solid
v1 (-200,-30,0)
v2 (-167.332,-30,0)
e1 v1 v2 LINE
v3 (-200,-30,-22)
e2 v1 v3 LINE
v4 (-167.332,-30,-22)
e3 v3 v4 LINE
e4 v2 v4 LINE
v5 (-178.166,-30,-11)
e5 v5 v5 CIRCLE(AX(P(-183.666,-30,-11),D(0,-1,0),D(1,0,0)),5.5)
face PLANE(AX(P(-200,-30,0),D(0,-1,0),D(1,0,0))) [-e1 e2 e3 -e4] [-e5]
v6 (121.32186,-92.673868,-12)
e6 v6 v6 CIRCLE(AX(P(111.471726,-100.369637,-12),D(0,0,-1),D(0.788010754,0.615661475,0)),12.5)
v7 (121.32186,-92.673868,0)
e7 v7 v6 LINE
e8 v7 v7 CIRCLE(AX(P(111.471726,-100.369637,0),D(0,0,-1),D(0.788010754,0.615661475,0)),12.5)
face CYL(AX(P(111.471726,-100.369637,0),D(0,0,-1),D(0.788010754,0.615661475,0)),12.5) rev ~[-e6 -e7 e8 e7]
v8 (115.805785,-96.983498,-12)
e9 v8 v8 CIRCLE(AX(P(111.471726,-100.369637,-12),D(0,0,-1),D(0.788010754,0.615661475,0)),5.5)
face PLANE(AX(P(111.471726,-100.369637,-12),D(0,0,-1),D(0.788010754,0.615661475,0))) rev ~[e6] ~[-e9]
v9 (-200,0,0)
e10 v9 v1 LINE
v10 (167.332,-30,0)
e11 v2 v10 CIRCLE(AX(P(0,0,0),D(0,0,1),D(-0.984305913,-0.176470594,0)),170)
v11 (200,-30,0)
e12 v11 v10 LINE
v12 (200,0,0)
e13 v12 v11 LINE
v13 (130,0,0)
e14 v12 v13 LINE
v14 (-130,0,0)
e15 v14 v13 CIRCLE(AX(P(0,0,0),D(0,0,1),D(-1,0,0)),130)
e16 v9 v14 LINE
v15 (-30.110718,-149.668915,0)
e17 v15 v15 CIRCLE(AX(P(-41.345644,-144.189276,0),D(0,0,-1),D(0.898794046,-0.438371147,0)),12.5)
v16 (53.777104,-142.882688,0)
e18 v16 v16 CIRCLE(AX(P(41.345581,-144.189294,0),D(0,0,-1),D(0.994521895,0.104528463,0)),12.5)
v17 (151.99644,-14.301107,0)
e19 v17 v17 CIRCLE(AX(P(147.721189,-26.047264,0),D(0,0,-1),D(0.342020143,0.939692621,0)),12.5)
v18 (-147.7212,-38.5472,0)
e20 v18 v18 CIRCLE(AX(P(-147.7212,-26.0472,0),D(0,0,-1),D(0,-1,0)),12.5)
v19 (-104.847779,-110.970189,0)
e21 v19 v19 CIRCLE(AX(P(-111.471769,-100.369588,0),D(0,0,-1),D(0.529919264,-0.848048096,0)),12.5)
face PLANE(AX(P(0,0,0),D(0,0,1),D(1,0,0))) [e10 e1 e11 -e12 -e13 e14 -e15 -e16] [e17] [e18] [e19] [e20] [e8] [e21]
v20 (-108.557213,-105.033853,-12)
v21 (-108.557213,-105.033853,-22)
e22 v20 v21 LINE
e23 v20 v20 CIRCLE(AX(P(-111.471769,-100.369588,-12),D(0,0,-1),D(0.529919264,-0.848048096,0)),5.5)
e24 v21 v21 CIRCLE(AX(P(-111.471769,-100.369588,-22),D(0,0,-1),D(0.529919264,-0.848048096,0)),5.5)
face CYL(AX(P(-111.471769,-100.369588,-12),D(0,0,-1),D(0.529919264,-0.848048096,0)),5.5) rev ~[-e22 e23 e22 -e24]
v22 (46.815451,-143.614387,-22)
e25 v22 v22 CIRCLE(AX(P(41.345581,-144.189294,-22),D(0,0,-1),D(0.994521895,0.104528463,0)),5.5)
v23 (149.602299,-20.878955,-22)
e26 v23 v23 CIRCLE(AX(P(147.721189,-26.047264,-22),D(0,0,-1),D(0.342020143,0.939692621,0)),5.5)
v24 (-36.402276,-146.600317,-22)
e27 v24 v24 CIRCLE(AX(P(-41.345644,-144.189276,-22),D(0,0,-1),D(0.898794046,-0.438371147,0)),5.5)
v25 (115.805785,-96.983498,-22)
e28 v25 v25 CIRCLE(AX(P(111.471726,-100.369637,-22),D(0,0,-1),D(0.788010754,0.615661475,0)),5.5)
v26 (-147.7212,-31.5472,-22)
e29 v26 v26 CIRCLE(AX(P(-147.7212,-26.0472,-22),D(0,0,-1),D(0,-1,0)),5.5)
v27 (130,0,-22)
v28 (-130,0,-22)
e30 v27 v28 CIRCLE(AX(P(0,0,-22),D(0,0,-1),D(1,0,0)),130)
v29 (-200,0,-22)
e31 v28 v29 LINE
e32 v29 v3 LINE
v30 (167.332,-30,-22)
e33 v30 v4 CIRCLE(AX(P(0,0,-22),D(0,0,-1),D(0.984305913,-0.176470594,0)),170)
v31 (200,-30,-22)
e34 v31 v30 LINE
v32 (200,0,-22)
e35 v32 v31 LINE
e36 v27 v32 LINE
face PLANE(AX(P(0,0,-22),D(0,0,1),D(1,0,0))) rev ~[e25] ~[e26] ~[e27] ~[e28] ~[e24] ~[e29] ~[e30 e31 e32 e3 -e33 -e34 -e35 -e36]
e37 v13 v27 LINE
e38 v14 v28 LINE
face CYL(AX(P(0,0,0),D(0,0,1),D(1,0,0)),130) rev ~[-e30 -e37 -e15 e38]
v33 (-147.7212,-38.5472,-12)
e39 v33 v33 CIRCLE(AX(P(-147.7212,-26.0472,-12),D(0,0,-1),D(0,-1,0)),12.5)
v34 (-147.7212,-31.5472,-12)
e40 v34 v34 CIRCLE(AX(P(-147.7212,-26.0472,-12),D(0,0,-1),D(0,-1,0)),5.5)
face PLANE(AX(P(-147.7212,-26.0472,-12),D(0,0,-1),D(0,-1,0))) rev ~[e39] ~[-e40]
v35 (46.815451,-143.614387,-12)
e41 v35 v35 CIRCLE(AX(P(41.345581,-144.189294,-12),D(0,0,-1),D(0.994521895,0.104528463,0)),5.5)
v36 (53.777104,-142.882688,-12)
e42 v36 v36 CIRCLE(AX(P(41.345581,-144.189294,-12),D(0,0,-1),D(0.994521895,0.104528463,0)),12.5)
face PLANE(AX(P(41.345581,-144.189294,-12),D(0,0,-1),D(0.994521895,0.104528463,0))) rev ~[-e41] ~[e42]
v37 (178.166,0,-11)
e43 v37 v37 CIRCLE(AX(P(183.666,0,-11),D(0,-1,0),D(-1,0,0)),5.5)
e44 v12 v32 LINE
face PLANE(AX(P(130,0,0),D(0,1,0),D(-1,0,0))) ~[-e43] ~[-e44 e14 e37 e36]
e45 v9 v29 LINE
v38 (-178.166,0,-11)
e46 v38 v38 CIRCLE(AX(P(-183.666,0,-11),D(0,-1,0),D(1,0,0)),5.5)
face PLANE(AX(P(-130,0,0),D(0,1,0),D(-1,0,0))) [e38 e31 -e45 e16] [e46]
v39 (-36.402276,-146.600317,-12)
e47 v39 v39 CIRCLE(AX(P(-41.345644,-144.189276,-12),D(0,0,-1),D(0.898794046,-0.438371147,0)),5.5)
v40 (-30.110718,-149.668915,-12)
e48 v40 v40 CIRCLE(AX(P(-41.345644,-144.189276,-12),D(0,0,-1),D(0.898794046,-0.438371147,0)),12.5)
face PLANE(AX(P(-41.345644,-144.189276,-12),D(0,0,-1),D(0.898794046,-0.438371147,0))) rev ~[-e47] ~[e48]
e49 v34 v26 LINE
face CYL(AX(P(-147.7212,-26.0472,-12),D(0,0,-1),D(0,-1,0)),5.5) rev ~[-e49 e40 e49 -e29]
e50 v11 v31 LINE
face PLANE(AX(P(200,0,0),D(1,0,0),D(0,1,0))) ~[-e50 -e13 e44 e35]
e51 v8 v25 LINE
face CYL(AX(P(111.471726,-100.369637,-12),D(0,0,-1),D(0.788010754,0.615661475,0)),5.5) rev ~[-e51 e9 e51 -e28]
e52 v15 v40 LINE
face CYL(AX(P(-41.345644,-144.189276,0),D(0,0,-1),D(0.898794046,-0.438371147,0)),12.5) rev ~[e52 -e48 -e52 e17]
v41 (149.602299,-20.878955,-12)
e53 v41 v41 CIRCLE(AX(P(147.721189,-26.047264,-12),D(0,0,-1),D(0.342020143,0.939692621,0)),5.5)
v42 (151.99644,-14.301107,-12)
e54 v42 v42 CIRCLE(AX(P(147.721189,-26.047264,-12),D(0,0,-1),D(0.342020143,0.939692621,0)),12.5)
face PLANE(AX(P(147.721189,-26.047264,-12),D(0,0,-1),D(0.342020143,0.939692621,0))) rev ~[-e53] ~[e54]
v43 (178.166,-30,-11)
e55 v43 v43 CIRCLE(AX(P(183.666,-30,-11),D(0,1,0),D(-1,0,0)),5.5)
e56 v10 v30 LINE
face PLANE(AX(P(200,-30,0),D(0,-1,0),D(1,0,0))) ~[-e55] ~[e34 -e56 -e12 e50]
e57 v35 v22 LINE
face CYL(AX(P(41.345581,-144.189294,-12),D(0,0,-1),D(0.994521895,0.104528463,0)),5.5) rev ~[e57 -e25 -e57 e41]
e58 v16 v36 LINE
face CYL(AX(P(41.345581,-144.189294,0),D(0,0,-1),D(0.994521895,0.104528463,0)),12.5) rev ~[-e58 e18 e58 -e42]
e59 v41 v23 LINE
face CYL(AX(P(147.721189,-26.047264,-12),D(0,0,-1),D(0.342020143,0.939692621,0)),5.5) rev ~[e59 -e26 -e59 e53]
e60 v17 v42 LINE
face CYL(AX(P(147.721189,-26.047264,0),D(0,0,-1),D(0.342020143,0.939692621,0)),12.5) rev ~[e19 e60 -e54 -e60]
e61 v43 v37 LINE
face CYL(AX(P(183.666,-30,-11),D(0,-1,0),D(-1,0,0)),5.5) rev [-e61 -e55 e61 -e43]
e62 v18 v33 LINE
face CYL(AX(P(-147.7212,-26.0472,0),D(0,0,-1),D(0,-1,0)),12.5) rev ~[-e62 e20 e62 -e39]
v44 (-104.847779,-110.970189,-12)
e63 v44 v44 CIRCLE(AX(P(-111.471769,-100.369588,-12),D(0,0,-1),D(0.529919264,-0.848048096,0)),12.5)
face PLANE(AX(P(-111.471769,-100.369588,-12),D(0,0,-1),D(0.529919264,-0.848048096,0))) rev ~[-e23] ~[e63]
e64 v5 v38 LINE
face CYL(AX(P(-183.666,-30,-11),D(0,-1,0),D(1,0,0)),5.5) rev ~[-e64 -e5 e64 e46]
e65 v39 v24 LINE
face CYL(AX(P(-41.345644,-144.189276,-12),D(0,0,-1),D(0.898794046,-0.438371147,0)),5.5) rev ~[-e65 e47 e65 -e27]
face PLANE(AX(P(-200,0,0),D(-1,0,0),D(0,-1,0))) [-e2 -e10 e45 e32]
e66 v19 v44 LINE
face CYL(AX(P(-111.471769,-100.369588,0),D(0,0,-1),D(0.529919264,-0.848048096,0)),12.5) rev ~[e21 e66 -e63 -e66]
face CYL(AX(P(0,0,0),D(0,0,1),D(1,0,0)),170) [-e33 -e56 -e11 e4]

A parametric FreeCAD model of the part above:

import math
import FreeCAD as App
import Part
import Sketcher

doc = App.newDocument("Part")
body = doc.addObject("PartDesign::Body", "Body")

# Sketch on XY plane
sketch1 = body.newObject("Sketcher::SketchObject", "Sketch")
sketch1.AttachmentSupport = (doc.getObject("XY_Plane"), [""])
sketch1.MapMode = "FlatFace"
sketch1.addGeometry([
    Part.ArcOfCircle(Part.Circle(App.Vector(0, 0, 0), App.Vector(0, 0, 1), 130), math.radians(180), math.radians(270)),  # 0
    Part.LineSegment(App.Vector(-130, 0, 0), App.Vector(-200, 0, 0)),  # 1
    Part.LineSegment(App.Vector(-200, 0, 0), App.Vector(-200, -30, 0)),  # 2
    Part.LineSegment(App.Vector(-200, -30, 0), App.Vector(-167.332, -30, 0)),  # 3
    Part.ArcOfCircle(Part.Circle(App.Vector(0, 0, 0), App.Vector(0, 0, 1), 170), math.radians(-169.835751), math.radians(-90)),  # 4
    Part.LineSegment(App.Vector(0, -170, 0), App.Vector(0, -130, 0)),  # 5
], False)
sketch1.addConstraint([
    Sketcher.Constraint("Coincident", 0, 1, 1, 1),
    Sketcher.Constraint("Coincident", 1, 2, 2, 1),
    Sketcher.Constraint("Coincident", 2, 2, 3, 1),
    Sketcher.Constraint("Coincident", 3, 2, 4, 1),
    Sketcher.Constraint("Coincident", 4, 2, 5, 1),
    Sketcher.Constraint("Coincident", 5, 2, 0, 2),
    Sketcher.Constraint("Horizontal", 1),
    Sketcher.Constraint("Vertical", 2),
    Sketcher.Constraint("Horizontal", 3),
    Sketcher.Constraint("Vertical", 5),
    Sketcher.Constraint("Coincident", 0, 3, -1, 1),
    Sketcher.Constraint("Coincident", 4, 3, -1, 1),
    Sketcher.Constraint("PointOnObject", 0, 1, -1),
    Sketcher.Constraint("PointOnObject", 4, 2, -2),
    Sketcher.Constraint("Radius", 0, 130.0),
    Sketcher.Constraint("DistanceY", 2, 2, 2, 1, 30.0),
    Sketcher.Constraint("DistanceY", 5, 1, 5, 2, 40.0),
    Sketcher.Constraint("DistanceX", 1, 2, 1, 1, 70.0),
])
pad1 = body.newObject("PartDesign::Pad", "Pad")
pad1.Profile = sketch1
pad1.Length = 22
pad1.Reversed = True

# Sketch on XZ plane
sketch2 = body.newObject("Sketcher::SketchObject", "Sketch001")
sketch2.AttachmentSupport = (doc.getObject("XZ_Plane"), [""])
sketch2.MapMode = "FlatFace"
sketch2.AttachmentOffset = App.Placement(App.Vector(0, 0, 30), App.Rotation())
sketch2.addGeometry(Part.Circle(App.Vector(-183.666, -11, 0), App.Vector(0, 0, 1), 5.5), False)
sketch2.addConstraint([
    Sketcher.Constraint("Diameter", 0, 11.0),
    Sketcher.Constraint("DistanceY", 0, 3, -1, 1, 11.0),
    Sketcher.Constraint("DistanceX", 0, 3, -1, 1, 183.666),
])
pocket1 = body.newObject("PartDesign::Pocket", "Pocket")
pocket1.Profile = sketch2
pocket1.Type = "ThroughAll"
doc.recompute()

mirrored = body.newObject("PartDesign::Mirrored", "Mirrored")
mirrored.Originals = [pad1, pocket1]
mirrored.MirrorPlane = (doc.getObject("YZ_Plane"), [""])
body.Tip = mirrored

# Sketch on XY plane
sketch3 = body.newObject("Sketcher::SketchObject", "Sketch002")
sketch3.AttachmentSupport = (doc.getObject("XY_Plane"), [""])
sketch3.MapMode = "FlatFace"
sketch3.addGeometry(Part.Circle(App.Vector(-147.7212, -26.0472, 0), App.Vector(0, 0, 1), 5.5), False)
sketch3.addConstraint([
    Sketcher.Constraint("Diameter", 0, 11.0),
    Sketcher.Constraint("DistanceX", 0, 3, -1, 1, 147.7212),
    Sketcher.Constraint("DistanceY", 0, 3, -1, 1, 26.0472),
])
doc.recompute()
hole = body.newObject("PartDesign::Hole", "Hole")
hole.Profile = sketch3
hole.ThreadType = "None"
hole.Diameter = 11
hole.DepthType = "ThroughAll"
hole.HoleCutType = "Counterbore"
hole.HoleCutDiameter = 25
hole.HoleCutDepth = 12
doc.recompute()

polarpattern = body.newObject("PartDesign::PolarPattern", "PolarPattern")
polarpattern.Originals = [hole]
polarpattern.Axis = (doc.getObject("Z_Axis"), [""])
polarpattern.Angle = 160
polarpattern.Occurrences = 6
body.Tip = polarpattern

doc.recompute()
